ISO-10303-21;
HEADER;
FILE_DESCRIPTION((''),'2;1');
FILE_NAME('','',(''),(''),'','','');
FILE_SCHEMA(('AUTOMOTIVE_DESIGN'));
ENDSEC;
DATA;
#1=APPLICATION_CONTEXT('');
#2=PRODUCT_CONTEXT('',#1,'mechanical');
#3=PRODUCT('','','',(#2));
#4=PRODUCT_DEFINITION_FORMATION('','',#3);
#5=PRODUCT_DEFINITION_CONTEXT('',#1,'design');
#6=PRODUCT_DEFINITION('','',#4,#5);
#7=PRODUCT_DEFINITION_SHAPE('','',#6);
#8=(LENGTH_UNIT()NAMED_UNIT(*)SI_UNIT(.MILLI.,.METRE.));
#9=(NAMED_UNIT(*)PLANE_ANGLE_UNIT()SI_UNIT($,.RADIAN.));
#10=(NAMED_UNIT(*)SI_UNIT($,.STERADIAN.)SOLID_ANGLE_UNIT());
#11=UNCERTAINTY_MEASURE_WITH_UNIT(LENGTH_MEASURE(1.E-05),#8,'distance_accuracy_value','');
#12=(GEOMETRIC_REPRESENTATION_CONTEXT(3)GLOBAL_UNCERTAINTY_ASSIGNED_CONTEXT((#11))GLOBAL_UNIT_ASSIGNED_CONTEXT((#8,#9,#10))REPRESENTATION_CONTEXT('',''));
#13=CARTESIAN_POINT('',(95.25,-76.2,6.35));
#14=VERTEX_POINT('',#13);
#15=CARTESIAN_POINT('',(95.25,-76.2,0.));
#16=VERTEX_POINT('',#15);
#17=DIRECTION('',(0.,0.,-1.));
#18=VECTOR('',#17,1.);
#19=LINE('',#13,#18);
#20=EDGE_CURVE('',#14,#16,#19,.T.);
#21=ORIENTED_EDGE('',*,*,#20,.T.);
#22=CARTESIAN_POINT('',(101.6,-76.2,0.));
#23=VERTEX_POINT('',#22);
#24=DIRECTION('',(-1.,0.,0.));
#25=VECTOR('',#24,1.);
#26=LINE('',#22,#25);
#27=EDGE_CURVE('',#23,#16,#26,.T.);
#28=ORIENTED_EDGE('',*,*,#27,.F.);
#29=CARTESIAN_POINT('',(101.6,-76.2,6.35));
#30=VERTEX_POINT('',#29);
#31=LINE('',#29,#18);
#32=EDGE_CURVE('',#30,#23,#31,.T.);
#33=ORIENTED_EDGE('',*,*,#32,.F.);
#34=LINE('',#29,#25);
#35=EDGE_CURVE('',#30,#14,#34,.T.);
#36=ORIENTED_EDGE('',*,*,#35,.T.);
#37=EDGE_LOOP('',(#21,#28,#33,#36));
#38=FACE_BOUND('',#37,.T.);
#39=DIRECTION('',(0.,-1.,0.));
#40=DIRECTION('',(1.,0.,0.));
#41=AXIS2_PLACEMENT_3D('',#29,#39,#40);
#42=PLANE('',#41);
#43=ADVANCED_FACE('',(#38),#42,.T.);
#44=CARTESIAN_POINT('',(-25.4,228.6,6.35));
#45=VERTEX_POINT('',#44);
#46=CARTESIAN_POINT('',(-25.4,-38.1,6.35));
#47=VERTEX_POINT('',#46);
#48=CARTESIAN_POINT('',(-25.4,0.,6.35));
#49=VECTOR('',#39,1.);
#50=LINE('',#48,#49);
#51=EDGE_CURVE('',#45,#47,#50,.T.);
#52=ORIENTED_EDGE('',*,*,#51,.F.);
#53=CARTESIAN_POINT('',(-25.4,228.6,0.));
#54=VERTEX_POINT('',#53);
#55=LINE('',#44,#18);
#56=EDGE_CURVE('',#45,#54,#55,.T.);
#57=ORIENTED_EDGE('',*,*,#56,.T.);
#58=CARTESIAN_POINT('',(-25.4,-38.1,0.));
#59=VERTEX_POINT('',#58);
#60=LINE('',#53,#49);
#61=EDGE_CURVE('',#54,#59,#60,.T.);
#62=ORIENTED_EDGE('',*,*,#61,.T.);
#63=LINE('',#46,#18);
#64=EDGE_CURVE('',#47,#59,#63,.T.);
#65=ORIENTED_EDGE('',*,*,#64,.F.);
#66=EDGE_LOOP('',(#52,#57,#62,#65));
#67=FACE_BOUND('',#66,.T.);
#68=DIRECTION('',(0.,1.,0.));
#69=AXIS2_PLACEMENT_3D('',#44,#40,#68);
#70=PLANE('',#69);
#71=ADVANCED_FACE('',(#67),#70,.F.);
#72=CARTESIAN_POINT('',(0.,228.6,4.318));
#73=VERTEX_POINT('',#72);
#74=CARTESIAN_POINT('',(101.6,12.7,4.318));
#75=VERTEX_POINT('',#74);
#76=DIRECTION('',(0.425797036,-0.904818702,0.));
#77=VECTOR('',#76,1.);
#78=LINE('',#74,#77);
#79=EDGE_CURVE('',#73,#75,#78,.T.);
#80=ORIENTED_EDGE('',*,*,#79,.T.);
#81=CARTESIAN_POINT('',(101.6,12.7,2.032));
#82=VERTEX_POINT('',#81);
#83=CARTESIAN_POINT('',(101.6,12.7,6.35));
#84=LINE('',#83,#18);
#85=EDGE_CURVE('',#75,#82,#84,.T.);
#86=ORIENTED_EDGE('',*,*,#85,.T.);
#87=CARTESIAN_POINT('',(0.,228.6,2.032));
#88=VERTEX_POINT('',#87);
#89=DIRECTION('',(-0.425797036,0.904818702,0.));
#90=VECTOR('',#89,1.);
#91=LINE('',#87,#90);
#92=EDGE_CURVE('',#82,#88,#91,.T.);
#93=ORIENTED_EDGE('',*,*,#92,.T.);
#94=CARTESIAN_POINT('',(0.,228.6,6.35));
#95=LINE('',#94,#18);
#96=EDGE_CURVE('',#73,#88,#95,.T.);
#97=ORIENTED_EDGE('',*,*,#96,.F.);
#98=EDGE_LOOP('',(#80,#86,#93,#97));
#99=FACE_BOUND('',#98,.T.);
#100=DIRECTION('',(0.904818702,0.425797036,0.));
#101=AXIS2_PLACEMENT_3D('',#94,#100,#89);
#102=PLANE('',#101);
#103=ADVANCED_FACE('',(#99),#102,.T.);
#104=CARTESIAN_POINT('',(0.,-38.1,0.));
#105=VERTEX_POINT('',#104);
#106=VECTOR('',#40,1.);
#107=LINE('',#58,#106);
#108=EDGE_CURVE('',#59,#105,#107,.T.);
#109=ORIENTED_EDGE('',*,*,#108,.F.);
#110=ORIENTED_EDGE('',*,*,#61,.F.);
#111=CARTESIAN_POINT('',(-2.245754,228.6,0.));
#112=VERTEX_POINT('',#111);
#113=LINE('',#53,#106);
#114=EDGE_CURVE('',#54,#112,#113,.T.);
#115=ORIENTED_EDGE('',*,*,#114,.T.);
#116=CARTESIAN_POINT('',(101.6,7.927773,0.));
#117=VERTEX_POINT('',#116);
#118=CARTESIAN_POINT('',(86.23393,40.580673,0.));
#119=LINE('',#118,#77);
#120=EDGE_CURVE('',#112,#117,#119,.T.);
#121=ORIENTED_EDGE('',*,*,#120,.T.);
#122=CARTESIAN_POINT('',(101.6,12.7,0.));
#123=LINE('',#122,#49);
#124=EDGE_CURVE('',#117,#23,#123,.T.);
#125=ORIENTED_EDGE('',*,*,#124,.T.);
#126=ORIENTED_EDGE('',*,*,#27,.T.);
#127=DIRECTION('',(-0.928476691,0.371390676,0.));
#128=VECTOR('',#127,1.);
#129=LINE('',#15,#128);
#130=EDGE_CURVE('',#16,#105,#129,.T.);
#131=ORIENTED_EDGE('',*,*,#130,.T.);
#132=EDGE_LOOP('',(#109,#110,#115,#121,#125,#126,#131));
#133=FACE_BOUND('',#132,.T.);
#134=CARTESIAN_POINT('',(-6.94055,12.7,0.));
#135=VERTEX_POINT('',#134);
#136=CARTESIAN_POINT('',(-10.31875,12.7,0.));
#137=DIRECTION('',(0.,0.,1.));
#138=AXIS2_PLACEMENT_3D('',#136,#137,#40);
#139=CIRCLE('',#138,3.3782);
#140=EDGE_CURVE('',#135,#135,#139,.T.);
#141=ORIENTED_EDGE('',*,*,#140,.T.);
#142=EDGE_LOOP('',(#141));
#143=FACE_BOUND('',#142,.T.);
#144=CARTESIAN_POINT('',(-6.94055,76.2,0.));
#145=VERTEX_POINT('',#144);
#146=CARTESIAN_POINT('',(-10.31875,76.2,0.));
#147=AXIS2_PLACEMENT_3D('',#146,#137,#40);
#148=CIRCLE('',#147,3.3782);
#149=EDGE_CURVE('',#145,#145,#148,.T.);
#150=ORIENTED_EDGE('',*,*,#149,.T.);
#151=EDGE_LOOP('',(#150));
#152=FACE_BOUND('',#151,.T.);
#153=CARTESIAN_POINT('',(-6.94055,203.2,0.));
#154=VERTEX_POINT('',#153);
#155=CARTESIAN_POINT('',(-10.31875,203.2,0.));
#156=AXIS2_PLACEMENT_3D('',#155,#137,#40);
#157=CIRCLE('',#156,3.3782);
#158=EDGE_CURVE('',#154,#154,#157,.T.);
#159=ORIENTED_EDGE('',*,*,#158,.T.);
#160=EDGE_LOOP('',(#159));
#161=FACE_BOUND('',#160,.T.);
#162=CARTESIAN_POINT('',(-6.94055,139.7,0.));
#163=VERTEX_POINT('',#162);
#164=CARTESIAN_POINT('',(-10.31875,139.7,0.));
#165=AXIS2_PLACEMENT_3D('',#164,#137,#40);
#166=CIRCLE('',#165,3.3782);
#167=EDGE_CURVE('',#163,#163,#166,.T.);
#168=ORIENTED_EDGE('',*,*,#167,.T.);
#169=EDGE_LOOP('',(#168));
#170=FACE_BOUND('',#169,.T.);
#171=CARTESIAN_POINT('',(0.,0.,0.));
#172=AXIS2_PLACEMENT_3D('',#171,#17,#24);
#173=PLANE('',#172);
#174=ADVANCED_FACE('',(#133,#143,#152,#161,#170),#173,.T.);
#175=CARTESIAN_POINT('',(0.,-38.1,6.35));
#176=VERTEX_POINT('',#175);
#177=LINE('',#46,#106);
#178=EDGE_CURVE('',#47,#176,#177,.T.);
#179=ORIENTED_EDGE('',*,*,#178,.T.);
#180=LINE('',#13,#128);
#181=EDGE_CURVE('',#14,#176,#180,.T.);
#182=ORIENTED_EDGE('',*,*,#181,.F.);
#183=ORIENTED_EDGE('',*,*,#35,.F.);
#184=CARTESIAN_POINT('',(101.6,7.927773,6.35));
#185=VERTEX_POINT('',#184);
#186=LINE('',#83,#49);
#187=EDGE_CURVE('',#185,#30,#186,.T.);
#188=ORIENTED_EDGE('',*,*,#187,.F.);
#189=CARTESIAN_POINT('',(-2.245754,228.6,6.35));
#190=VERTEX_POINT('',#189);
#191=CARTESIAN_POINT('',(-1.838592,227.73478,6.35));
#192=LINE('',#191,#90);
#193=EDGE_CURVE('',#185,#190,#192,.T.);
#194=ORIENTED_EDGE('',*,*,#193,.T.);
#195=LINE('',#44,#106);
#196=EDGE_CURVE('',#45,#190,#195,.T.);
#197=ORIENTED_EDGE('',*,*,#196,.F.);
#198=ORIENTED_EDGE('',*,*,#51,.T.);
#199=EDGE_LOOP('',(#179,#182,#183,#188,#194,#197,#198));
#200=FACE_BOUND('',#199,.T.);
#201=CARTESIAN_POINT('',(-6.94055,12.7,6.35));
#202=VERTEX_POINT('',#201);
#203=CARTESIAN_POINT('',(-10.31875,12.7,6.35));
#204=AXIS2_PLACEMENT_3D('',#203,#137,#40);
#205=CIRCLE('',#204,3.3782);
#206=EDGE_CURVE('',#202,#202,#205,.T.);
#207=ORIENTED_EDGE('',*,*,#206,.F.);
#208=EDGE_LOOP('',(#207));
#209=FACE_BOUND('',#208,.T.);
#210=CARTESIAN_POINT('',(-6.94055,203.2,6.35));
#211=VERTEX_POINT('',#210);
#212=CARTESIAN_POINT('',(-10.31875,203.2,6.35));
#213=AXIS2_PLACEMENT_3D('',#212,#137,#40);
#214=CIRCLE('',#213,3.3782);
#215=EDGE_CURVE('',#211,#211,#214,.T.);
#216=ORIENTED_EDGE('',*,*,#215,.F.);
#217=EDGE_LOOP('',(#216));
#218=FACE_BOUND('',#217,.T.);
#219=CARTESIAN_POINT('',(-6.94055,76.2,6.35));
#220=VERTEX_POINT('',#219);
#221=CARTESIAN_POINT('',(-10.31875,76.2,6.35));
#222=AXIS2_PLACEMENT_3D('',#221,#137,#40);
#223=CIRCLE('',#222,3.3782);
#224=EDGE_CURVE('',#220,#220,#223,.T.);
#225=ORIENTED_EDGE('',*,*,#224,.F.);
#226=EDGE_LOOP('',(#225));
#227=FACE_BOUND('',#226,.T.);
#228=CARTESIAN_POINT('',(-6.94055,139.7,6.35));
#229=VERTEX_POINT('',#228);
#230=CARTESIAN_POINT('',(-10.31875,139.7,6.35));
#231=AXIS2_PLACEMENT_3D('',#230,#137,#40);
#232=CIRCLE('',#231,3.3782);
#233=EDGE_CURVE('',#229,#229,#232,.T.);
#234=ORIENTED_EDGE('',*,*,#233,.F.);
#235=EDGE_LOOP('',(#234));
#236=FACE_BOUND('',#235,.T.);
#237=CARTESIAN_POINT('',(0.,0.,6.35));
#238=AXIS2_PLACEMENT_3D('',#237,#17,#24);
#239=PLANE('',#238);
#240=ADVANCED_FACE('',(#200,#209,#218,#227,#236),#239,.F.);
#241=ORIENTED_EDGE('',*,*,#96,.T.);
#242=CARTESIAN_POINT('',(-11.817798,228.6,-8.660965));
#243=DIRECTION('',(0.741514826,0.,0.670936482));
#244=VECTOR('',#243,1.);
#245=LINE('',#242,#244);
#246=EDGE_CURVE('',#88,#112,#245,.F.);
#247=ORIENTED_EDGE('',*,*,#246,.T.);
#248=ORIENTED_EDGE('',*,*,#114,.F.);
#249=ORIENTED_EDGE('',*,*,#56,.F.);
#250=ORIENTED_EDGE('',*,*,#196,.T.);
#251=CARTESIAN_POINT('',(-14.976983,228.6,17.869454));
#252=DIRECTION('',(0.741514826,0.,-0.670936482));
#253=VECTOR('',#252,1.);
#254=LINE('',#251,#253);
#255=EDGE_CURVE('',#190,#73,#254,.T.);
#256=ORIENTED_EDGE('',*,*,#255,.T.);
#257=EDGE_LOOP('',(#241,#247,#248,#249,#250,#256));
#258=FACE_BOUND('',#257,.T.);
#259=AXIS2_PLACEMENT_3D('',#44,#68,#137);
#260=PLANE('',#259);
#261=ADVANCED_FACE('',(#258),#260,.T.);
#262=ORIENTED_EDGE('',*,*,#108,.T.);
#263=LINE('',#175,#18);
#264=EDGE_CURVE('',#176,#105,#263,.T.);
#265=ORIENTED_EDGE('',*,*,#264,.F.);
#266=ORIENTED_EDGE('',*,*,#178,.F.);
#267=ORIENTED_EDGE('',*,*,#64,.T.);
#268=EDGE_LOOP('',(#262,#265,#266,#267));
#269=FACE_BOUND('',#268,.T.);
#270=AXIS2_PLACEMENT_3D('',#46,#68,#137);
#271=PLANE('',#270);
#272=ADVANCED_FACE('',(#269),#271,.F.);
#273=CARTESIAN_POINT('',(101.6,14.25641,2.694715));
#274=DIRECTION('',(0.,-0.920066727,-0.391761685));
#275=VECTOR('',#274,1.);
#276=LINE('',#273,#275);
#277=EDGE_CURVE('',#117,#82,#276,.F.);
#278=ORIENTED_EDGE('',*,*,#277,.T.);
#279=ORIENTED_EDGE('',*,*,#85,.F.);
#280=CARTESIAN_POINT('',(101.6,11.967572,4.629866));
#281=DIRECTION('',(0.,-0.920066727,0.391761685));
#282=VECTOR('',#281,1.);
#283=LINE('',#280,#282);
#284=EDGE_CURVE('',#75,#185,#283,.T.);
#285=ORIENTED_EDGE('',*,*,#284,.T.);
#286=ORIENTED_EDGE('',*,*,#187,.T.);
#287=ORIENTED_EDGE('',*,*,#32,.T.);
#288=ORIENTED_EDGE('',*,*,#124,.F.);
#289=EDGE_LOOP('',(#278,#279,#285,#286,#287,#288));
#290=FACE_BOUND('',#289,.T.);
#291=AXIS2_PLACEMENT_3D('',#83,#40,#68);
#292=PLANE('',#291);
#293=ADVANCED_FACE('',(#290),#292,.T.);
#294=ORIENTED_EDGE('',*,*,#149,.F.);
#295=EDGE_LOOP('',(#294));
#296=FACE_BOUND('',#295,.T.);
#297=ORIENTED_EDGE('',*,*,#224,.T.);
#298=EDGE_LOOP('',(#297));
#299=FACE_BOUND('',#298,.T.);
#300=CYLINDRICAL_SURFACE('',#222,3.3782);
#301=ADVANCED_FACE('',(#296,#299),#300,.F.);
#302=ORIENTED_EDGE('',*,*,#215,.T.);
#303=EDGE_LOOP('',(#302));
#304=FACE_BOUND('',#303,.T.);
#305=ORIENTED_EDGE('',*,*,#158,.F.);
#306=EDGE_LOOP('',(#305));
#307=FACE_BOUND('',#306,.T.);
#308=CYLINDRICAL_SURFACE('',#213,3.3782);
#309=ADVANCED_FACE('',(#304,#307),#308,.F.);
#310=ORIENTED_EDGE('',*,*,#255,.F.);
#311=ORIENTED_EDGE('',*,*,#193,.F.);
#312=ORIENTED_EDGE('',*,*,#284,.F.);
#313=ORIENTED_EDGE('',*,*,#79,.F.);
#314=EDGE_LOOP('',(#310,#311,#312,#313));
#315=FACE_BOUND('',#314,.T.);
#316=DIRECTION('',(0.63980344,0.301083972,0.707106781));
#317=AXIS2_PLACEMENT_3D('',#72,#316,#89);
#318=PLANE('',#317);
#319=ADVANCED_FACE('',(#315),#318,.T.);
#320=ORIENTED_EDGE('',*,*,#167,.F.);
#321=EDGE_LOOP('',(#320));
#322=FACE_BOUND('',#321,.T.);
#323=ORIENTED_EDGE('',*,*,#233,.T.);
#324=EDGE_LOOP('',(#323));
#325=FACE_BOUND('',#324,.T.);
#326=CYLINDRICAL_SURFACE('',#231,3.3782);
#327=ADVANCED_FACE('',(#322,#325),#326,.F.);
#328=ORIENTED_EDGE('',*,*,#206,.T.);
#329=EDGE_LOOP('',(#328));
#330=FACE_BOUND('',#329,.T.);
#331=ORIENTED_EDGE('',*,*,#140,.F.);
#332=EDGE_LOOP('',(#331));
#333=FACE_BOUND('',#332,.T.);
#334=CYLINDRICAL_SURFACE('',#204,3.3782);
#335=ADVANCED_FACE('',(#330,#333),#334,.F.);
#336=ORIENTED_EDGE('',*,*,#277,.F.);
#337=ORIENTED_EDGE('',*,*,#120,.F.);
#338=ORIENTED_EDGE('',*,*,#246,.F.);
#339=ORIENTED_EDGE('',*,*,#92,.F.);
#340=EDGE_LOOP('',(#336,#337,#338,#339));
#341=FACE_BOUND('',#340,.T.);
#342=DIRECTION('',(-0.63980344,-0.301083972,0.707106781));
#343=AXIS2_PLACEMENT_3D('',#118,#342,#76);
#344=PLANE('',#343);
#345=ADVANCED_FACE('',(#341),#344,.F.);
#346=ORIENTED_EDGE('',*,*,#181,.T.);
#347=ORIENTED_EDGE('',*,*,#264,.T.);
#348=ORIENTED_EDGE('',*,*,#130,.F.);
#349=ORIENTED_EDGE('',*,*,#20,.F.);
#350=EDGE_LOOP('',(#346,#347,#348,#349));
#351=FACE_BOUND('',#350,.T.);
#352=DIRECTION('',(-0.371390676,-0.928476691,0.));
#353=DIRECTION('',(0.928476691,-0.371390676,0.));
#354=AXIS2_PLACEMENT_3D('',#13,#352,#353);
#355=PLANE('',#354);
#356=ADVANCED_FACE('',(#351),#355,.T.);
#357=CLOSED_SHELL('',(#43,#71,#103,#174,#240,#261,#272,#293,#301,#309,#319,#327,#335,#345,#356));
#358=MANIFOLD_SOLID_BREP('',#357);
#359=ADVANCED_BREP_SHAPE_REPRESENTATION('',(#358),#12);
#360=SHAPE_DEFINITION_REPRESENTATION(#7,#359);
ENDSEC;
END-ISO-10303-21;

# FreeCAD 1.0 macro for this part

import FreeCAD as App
import Part
import Sketcher

V = App.Vector
Q = App.Units.Quantity


def edges_at(feature, points):
    """Names of the edges that pass closest to the given points."""
    edges = feature.Shape.Edges
    near = lambda p: min(range(len(edges)), key=lambda i: edges[i].distToShape(Part.Vertex(*p))[0])
    return sorted({f"Edge{near(p) + 1}" for p in points})


def add_polygon(sketch, points):
    """Adds a closed chain of lines whose ends are joined by coincident constraints."""
    first, n = sketch.GeometryCount, len(points)
    for a, b in zip(points, points[1:] + points[:1]):
        sketch.addGeometry(Part.LineSegment(App.Vector(*a, 0), App.Vector(*b, 0)), False)
    for i in range(n):
        sketch.addConstraint(Sketcher.Constraint("Coincident", first + i, 2, first + (i + 1) % n, 1))

doc = App.newDocument("Part")
body = doc.addObject("PartDesign::Body", "Body")

sketch1 = doc.addObject("Sketcher::SketchObject", "Sketch")
body.addObject(sketch1)
sketch1.AttachmentSupport = (doc.XY_Plane, [""])
sketch1.MapMode = "FlatFace"
add_polygon(sketch1, [(101.6, -76.2), (101.6, 12.7), (0, 228.6), (-25.4, 228.6), (-25.4, -38.1), (0, -38.1), (95.25, -76.2)])
sketch1.addConstraint(Sketcher.Constraint("Vertical", 0))
sketch1.addConstraint(Sketcher.Constraint("Horizontal", 2))
sketch1.addConstraint(Sketcher.Constraint("Vertical", 3))
sketch1.addConstraint(Sketcher.Constraint("Horizontal", 4))
sketch1.addConstraint(Sketcher.Constraint("Horizontal", 6))
sketch1.addConstraint(Sketcher.Constraint("PointOnObject", 1, 2, -2))
sketch1.addConstraint(Sketcher.Constraint("PointOnObject", 4, 2, -2))
sketch1.addConstraint(Sketcher.Constraint("DistanceX", 2, 2, 2, 1, Q("1 in")))
sketch1.addConstraint(Sketcher.Constraint("DistanceY", 0, 1, 0, 2, Q("3.5 in")))
sketch1.addConstraint(Sketcher.Constraint("DistanceY", 3, 2, 3, 1, Q("10.5 in")))
sketch1.addConstraint(Sketcher.Constraint("DistanceX", -1, 1, 0, 2, Q("4 in")))
sketch1.addConstraint(Sketcher.Constraint("DistanceY", -1, 1, 1, 2, Q("9 in")))
sketch1.addConstraint(Sketcher.Constraint("DistanceY", 5, 2, -1, 1, Q("3 in")))
sketch1.addConstraint(Sketcher.Constraint("DistanceX", 6, 1, 6, 2, Q("0.25 in")))
pad1 = doc.addObject("PartDesign::Pad", "Pad")
body.addObject(pad1)
pad1.Profile = sketch1
pad1.Length = Q("0.25 in")
doc.recompute()

chamfer = doc.addObject("PartDesign::Chamfer", "Chamfer")
body.addObject(chamfer)
chamfer.Base = (pad1, edges_at(pad1, [(50.8, 120.65, 0), (50.8, 120.65, 6.35)]))
chamfer.Size = Q("0.08 in")

sketch2 = doc.addObject("Sketcher::SketchObject", "Sketch001")
body.addObject(sketch2)
sketch2.AttachmentSupport = (doc.XY_Plane, [""])
sketch2.MapMode = "FlatFace"
sketch2.AttachmentOffset = App.Placement(V(0, 0, 0.25 * 25.4), App.Rotation())
sketch2.addGeometry(Part.Circle(V(-10.31875, 203.2, 0), V(0, 0, 1), 3.3782), False)
sketch2.addConstraint(Sketcher.Constraint("Diameter", 0, Q("0.266 in")))
sketch2.addConstraint(Sketcher.Constraint("DistanceY", -1, 1, 0, 3, Q("8 in")))
sketch2.addConstraint(Sketcher.Constraint("DistanceX", 0, 3, -1, 1, Q("0.40625 in")))
doc.recompute()
hole = doc.addObject("PartDesign::Hole", "Hole")
body.addObject(hole)
hole.Profile = sketch2
hole.ThreadType = "None"
hole.Diameter = Q("0.266 in")
hole.DepthType = "ThroughAll"
doc.recompute()

linearpattern = doc.addObject("PartDesign::LinearPattern", "LinearPattern")
body.addObject(linearpattern)
linearpattern.Originals = [hole]
linearpattern.Direction = (doc.Y_Axis, [""])
linearpattern.Mode = "offset"
linearpattern.Offset = Q("2.5 in")
linearpattern.Occurrences = 4
linearpattern.Reversed = True
body.Tip = linearpattern

doc.recompute()
